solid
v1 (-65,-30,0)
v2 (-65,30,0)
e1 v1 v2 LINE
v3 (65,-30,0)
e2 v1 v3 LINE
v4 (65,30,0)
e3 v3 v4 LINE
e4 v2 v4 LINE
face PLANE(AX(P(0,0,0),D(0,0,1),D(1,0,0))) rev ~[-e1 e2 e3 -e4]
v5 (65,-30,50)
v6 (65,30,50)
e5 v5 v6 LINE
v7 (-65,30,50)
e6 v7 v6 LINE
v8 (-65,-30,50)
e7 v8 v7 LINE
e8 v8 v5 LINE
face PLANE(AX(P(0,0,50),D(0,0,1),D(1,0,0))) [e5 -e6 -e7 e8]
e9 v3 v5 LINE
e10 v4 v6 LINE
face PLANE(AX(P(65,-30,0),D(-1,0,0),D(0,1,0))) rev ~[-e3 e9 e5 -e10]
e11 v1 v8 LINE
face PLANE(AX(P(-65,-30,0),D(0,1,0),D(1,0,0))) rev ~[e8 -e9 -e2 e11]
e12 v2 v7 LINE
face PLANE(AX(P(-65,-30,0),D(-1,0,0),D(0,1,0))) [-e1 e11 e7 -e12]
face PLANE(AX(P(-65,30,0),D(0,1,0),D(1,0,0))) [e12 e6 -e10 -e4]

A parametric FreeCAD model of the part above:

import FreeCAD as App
import Part
import Sketcher

V = App.Vector

doc = App.newDocument("Part")
body = doc.addObject("PartDesign::Body", "Body")

# Sketch on XY plane
sketch1 = body.newObject("Sketcher::SketchObject", "Sketch")
sketch1.AttachmentSupport = (doc.getObject("XY_Plane"), [""])
sketch1.MapMode = "FlatFace"
sketch1.addGeometry([
    Part.LineSegment(V(-65, 30, 0), V(-65, -30, 0)),
    Part.LineSegment(V(-65, -30, 0), V(65, -30, 0)),
    Part.LineSegment(V(65, -30, 0), V(65, 30, 0)),
    Part.LineSegment(V(65, 30, 0), V(-65, 30, 0)),
], False)
sketch1.addConstraint([
    Sketcher.Constraint("Coincident", 0, 2, 1, 1),
    Sketcher.Constraint("Coincident", 1, 2, 2, 1),
    Sketcher.Constraint("Coincident", 2, 2, 3, 1),
    Sketcher.Constraint("Coincident", 3, 2, 0, 1),
    Sketcher.Constraint("Vertical", 0),
    Sketcher.Constraint("Horizontal", 1),
    Sketcher.Constraint("Vertical", 2),
    Sketcher.Constraint("Horizontal", 3),
    Sketcher.Constraint("Symmetric", 0, 2, 2, 2, -1, 1),
    Sketcher.Constraint("DistanceX", 1, 1, 1, 2, 130.0),
    Sketcher.Constraint("DistanceY", 0, 2, 0, 1, 60.0),
])
pad1 = body.newObject("PartDesign::Pad", "Pad")
pad1.Profile = sketch1
pad1.Length = 50

doc.recompute()
